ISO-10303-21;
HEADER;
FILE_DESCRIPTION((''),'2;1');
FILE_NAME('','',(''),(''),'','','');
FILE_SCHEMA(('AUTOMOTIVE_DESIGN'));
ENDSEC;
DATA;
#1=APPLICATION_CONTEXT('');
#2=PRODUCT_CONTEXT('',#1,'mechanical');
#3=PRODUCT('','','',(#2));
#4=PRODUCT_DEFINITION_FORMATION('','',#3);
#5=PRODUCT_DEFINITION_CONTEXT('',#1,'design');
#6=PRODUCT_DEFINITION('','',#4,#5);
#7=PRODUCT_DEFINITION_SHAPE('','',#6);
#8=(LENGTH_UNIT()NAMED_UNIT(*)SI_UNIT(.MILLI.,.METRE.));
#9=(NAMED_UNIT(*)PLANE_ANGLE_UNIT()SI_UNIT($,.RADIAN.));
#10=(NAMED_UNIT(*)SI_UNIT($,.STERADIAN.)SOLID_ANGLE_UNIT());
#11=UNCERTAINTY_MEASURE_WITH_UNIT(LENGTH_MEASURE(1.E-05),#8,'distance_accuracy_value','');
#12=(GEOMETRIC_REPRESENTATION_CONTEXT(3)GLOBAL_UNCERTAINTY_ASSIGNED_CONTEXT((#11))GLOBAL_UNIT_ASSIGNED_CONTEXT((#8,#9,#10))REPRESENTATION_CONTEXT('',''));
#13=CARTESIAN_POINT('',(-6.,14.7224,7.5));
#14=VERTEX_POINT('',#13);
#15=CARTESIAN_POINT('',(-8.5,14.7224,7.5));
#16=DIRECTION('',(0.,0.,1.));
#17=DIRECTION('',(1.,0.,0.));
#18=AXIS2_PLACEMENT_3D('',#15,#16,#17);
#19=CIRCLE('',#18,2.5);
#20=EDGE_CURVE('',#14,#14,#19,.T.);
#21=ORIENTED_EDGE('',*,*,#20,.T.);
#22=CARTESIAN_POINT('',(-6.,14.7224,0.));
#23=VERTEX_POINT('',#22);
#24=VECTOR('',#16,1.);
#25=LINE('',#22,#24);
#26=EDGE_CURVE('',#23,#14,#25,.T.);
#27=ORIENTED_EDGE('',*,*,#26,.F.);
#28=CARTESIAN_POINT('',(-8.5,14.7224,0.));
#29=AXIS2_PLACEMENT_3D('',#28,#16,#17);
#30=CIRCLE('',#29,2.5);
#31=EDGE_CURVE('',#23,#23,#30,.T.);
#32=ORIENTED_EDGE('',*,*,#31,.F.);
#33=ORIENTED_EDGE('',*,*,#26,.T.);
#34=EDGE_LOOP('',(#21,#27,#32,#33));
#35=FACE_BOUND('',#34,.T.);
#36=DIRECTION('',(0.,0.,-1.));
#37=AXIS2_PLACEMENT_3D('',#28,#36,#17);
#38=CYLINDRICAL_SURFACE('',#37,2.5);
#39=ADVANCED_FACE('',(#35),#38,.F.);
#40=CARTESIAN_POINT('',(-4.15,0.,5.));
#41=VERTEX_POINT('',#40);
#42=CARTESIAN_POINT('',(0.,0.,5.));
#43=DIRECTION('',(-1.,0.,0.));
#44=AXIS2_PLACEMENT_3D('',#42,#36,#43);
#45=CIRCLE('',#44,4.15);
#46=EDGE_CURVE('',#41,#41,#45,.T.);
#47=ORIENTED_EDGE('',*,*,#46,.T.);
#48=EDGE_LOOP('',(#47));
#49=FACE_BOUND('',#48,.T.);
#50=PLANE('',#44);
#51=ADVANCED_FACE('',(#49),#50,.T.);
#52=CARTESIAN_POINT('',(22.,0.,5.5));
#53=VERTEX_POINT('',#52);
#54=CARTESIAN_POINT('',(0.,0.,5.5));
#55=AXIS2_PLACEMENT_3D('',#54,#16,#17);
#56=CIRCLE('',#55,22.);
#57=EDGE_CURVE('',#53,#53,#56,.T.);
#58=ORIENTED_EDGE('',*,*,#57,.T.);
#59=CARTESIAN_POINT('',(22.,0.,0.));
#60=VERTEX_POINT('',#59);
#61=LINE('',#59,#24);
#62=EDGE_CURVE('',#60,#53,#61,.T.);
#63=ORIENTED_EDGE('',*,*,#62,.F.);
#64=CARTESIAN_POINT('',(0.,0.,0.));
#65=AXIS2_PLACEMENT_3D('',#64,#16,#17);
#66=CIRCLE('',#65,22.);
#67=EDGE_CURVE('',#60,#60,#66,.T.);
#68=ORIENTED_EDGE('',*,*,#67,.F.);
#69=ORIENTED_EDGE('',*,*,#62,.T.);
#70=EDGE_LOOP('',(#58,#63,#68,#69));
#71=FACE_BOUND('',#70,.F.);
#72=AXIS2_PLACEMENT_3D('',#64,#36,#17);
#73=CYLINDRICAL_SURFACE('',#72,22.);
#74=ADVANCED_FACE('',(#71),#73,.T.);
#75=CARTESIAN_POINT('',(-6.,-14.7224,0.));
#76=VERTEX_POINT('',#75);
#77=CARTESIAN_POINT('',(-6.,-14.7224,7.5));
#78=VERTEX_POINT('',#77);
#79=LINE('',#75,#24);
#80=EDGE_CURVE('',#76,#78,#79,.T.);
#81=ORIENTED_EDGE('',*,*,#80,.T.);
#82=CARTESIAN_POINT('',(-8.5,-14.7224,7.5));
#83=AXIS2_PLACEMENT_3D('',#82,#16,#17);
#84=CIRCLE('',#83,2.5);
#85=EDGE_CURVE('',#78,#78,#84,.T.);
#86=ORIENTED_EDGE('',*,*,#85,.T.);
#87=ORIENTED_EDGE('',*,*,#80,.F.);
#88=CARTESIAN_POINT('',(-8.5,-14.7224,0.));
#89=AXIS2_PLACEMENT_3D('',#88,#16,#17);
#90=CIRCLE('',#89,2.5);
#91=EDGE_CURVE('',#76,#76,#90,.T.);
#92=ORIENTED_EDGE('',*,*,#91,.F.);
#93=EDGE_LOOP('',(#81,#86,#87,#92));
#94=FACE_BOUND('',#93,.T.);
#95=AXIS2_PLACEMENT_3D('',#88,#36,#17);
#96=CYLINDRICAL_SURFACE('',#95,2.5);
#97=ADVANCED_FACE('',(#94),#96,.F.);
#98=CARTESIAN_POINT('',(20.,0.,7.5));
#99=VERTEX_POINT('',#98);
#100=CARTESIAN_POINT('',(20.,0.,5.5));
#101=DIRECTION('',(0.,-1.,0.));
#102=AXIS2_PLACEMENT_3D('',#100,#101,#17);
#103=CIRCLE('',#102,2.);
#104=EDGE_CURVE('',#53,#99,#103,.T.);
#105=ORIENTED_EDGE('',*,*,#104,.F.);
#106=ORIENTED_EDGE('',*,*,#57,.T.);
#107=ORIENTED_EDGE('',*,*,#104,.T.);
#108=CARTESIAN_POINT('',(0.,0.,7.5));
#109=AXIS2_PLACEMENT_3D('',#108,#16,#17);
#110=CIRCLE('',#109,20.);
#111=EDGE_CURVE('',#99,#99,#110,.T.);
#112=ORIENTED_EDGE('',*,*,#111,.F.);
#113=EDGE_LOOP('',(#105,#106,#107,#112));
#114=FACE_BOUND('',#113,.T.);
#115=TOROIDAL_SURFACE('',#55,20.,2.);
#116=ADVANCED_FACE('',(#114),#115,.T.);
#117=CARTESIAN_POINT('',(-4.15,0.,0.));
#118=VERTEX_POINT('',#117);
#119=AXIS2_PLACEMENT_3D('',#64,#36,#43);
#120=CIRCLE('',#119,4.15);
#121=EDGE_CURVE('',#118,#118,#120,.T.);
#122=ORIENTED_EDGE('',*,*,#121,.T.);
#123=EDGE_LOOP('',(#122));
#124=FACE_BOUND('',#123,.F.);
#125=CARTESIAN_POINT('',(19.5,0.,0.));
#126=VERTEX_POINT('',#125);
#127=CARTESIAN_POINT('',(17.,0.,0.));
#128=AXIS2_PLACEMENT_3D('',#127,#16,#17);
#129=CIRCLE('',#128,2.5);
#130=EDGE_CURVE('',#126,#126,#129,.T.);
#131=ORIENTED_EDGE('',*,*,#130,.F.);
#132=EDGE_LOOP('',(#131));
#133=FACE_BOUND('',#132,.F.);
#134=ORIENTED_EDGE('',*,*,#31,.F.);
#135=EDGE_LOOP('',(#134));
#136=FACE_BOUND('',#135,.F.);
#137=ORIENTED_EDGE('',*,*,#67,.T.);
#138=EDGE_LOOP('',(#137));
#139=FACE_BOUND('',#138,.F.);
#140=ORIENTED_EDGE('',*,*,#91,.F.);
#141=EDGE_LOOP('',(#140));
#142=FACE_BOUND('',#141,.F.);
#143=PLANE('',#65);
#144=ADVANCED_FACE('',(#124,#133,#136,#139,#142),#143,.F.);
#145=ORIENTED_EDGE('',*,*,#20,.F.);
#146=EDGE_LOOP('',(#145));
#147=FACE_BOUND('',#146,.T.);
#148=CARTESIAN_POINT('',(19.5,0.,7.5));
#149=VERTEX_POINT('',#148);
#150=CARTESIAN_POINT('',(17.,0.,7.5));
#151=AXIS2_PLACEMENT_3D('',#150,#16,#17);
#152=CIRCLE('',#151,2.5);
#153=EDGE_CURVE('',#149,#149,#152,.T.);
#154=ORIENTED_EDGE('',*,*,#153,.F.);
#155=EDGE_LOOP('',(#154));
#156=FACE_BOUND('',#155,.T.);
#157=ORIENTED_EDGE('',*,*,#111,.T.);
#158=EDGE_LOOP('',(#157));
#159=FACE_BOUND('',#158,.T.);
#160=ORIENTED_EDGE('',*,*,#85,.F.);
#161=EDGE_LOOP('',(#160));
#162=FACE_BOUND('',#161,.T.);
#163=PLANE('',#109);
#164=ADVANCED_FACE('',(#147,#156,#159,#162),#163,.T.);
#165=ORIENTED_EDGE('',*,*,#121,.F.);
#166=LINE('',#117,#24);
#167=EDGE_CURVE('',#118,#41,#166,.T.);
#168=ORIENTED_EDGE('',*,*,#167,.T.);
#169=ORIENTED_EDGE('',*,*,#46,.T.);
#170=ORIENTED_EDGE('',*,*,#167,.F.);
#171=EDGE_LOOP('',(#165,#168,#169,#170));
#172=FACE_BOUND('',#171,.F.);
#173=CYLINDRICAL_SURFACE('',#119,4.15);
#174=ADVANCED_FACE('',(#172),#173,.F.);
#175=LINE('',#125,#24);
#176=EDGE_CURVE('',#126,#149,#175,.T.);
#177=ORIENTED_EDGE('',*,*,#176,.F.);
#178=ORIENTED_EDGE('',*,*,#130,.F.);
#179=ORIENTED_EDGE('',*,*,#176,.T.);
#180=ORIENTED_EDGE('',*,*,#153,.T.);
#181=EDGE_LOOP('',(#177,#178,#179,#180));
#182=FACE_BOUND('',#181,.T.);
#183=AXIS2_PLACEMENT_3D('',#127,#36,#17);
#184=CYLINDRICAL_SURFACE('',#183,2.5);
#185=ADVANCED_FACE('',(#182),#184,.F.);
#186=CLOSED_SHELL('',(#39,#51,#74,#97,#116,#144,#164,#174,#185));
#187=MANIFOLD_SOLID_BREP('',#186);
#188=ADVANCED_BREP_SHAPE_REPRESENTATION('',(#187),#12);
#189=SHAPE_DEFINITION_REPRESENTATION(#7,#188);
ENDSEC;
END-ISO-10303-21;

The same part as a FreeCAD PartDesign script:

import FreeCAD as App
import Part
import Sketcher
from FreeCAD import Vector


def edges_at(feature, points):
    """Names of the edges that pass closest to the given points."""
    edges = feature.Shape.Edges
    near = lambda p: min(range(len(edges)), key=lambda i: edges[i].distToShape(Part.Vertex(*p))[0])
    return sorted({f"Edge{near(p) + 1}" for p in points})

doc = App.newDocument("Part")
body = doc.addObject("PartDesign::Body", "Body")

sketch1 = body.newObject("Sketcher::SketchObject", "Sketch")
sketch1.AttachmentSupport = (doc.getObject("XY_Plane"), [""])
sketch1.MapMode = "FlatFace"
sketch1.addGeometry(Part.Circle(Vector(0, 0, 0), Vector(0, 0, 1), 22), False)
sketch1.addGeometry(Part.Circle(Vector(-8.5, -14.7, 0), Vector(0, 0, 1), 2.5), False)
sketch1.addGeometry(Part.Circle(Vector(-8.5, 14.7, 0), Vector(0, 0, 1), 2.5), False)
sketch1.addGeometry(Part.Circle(Vector(17, 0, 0), Vector(0, 0, 1), 2.5), False)
sketch1.addConstraint(Sketcher.Constraint("Coincident", 0, 3, -1, 1))
sketch1.addConstraint(Sketcher.Constraint("Equal", 1, 2))
sketch1.addConstraint(Sketcher.Constraint("Equal", 2, 3))
sketch1.addConstraint(Sketcher.Constraint("Symmetric", 1, 3, 2, 3, -1))
sketch1.addConstraint(Sketcher.Constraint("PointOnObject", 3, 3, -1))
sketch1.addConstraint(Sketcher.Constraint("Diameter", 0, 44.0))
sketch1.addConstraint(Sketcher.Constraint("Diameter", 1, 5.0))
sketch1.addConstraint(Sketcher.Constraint("DistanceX", -1, 1, 3, 3, 17.0))
sketch1.addConstraint(Sketcher.Constraint("DistanceX", 1, 3, -1, 1, 8.5))
sketch1.addConstraint(Sketcher.Constraint("DistanceY", 1, 3, -1, 1, 14.7224))
pad1 = body.newObject("PartDesign::Pad", "Pad")
pad1.Profile = sketch1
pad1.Length = 7.5
doc.recompute()

fillet = body.newObject("PartDesign::Fillet", "Fillet")
fillet.Base = (pad1, edges_at(pad1, [(-22, 0, 7.5)]))
fillet.Radius = 2

sketch2 = body.newObject("Sketcher::SketchObject", "Sketch001")
sketch2.AttachmentSupport = (doc.getObject("XY_Plane"), [""])
sketch2.MapMode = "FlatFace"
sketch2.addGeometry(Part.Circle(Vector(0, 0, 0), Vector(0, 0, 1), 4.2), False)
sketch2.addConstraint(Sketcher.Constraint("Coincident", 0, 3, -1, 1))
sketch2.addConstraint(Sketcher.Constraint("Diameter", 0, 8.3))
pocket1 = body.newObject("PartDesign::Pocket", "Pocket")
pocket1.Profile = sketch2
pocket1.Length = 5
pocket1.Reversed = True

doc.recompute()
